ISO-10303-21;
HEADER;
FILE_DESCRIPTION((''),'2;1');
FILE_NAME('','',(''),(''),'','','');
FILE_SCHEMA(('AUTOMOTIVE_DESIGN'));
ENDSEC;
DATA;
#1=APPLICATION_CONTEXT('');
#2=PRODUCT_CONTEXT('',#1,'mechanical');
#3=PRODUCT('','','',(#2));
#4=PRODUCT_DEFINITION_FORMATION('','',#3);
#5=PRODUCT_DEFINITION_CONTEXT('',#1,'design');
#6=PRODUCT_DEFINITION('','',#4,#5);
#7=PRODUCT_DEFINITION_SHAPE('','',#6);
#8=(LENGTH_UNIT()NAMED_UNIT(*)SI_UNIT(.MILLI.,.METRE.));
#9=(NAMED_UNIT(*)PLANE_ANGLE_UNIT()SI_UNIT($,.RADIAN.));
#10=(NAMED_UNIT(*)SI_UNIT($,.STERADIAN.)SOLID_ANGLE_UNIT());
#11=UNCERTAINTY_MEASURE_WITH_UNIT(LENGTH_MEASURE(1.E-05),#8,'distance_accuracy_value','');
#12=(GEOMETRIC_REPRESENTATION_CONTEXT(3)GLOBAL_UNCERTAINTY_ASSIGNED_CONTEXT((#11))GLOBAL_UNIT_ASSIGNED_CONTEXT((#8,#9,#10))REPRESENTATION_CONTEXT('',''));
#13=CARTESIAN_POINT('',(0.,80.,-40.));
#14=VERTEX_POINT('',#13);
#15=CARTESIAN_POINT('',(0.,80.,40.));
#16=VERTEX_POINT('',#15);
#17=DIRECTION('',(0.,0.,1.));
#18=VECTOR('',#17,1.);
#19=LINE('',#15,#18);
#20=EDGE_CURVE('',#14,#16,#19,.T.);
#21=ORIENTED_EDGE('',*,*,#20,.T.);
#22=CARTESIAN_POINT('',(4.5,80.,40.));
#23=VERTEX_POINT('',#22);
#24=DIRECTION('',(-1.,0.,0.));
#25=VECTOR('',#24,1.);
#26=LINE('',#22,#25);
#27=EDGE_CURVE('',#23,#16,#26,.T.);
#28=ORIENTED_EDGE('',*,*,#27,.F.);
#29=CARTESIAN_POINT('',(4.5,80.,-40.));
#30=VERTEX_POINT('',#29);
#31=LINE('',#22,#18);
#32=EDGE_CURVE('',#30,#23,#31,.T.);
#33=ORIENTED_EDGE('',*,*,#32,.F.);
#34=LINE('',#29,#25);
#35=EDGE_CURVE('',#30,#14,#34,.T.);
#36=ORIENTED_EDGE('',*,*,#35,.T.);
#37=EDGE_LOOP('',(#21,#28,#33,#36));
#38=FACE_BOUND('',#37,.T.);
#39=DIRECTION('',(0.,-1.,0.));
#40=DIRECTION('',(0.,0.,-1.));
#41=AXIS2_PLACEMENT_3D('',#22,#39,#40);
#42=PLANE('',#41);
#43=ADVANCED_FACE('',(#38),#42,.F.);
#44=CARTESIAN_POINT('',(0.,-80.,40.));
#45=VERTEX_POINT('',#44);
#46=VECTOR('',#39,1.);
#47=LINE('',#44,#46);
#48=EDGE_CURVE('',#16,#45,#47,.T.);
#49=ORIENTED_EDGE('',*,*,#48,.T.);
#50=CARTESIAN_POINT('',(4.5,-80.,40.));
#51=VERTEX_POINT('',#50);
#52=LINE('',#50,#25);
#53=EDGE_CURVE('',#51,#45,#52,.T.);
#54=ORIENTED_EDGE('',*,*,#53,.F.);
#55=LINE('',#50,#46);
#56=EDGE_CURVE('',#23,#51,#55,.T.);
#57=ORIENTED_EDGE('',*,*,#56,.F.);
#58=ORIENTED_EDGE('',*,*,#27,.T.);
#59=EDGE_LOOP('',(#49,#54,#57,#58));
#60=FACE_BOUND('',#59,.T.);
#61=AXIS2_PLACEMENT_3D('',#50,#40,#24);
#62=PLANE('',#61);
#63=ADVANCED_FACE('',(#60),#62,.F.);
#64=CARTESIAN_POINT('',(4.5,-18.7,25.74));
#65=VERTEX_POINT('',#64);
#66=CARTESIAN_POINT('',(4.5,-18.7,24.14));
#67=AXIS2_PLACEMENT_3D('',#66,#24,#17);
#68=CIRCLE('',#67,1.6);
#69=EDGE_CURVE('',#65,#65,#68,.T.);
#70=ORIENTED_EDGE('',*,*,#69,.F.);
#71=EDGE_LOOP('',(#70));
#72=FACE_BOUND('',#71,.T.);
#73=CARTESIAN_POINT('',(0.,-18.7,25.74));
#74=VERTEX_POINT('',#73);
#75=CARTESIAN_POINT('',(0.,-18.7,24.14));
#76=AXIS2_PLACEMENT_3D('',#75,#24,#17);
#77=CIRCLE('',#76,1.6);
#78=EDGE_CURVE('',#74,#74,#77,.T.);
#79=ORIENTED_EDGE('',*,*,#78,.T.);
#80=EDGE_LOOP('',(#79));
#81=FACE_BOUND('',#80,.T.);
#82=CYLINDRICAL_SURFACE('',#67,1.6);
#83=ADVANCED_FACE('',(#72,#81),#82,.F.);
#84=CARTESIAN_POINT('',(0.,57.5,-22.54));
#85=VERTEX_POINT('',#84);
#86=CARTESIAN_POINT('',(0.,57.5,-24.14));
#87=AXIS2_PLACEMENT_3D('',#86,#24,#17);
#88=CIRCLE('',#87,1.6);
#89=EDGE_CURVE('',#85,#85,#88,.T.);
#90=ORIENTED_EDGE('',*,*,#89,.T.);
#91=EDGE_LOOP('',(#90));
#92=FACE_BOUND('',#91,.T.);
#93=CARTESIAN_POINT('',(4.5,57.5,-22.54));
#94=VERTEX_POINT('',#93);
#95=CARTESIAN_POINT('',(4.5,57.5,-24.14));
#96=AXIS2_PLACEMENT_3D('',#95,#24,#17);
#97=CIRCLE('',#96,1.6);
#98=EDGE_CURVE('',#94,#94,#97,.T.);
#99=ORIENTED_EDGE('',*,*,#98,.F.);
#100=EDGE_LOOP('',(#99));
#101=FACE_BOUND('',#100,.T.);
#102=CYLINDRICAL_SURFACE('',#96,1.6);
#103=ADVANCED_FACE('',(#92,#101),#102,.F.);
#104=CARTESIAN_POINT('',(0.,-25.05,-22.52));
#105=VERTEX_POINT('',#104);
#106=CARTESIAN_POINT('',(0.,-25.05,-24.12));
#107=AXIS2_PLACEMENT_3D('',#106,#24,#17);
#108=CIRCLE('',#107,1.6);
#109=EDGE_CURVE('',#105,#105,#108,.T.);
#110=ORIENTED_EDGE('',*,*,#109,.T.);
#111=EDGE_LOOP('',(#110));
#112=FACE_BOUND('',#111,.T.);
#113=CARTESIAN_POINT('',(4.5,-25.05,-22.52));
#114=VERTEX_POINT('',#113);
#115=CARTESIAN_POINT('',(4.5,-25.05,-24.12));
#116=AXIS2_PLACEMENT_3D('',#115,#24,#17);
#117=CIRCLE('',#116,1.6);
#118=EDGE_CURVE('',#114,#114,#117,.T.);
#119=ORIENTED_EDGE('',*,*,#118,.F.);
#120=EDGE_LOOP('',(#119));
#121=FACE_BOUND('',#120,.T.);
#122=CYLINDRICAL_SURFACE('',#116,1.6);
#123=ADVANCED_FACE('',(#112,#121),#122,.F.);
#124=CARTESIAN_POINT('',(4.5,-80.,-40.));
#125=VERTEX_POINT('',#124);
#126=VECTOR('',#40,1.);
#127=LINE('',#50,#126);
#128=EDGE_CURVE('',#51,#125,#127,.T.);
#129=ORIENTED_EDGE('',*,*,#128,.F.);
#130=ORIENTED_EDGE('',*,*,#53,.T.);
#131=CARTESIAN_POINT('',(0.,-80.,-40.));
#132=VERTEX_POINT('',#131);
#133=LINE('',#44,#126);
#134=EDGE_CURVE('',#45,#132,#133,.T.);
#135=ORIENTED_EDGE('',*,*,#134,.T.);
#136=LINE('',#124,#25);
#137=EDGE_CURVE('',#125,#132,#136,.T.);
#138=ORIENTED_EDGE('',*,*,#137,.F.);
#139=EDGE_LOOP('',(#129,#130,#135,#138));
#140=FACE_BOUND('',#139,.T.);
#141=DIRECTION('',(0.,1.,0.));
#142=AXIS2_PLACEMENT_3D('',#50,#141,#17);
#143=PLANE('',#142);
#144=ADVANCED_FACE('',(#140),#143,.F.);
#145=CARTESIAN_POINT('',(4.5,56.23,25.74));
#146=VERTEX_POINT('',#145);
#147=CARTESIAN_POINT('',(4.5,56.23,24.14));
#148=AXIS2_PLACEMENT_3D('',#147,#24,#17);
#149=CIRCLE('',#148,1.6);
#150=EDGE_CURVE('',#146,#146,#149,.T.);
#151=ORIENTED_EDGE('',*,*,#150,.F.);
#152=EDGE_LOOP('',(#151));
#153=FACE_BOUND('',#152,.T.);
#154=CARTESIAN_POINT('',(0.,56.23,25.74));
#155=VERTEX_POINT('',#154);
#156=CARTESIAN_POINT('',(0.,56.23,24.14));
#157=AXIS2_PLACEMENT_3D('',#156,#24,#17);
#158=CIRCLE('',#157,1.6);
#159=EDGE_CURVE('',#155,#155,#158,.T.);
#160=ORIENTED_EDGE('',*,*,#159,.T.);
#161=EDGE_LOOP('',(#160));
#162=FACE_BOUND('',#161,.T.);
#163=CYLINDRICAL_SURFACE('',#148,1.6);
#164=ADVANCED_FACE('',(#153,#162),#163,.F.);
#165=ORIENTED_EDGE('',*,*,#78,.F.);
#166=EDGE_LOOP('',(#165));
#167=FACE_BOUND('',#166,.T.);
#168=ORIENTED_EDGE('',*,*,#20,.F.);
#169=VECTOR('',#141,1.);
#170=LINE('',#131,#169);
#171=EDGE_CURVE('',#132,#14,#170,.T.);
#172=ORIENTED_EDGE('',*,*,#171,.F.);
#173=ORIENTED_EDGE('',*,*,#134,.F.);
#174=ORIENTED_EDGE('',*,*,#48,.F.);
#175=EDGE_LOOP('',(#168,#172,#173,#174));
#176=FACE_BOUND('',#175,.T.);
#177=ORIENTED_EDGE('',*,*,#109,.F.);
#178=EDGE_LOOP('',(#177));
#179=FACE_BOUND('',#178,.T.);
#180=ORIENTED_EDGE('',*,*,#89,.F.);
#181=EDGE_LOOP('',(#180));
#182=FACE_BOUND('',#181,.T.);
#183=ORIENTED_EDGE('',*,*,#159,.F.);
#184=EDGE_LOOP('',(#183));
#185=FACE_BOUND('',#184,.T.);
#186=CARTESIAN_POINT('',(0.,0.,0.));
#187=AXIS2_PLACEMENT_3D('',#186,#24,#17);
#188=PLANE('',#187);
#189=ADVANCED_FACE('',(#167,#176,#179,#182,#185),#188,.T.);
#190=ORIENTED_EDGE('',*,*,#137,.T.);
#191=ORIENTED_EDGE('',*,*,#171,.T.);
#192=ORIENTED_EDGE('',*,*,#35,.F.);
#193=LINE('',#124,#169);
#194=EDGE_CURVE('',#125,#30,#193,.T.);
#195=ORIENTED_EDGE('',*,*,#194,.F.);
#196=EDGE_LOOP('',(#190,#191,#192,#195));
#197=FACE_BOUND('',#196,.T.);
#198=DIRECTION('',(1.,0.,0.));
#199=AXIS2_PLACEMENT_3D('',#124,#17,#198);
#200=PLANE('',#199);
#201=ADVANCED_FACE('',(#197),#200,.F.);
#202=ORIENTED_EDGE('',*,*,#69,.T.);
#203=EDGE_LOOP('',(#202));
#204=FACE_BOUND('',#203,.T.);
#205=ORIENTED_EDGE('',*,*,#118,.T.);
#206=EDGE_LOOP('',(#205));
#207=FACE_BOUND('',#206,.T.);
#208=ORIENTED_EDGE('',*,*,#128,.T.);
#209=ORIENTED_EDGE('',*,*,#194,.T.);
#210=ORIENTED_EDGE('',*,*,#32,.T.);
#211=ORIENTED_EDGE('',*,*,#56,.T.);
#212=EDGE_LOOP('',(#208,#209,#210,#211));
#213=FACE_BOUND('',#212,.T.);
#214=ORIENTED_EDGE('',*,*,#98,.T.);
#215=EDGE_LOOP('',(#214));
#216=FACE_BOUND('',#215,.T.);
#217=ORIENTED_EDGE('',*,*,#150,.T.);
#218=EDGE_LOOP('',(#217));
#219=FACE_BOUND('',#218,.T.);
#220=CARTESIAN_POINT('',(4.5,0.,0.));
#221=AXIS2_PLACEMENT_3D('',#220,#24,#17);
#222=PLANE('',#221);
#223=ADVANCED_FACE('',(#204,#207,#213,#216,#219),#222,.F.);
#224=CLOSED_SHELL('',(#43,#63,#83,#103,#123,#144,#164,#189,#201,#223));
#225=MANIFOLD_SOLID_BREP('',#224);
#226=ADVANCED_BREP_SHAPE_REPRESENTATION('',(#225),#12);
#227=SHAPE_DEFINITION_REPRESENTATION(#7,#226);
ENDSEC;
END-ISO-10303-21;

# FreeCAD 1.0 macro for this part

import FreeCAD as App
import Part
import Sketcher
from FreeCAD import Vector

doc = App.newDocument("Part")
body = doc.addObject("PartDesign::Body", "Body")

# Sketch on YZ plane
sketch1 = doc.addObject("Sketcher::SketchObject", "Sketch")
body.addObject(sketch1)
sketch1.AttachmentSupport = (doc.YZ_Plane, [""])
sketch1.MapMode = "FlatFace"
sketch1.addGeometry(Part.LineSegment(Vector(80, 40, 0), Vector(-80, 40, 0)), False)
sketch1.addGeometry(Part.LineSegment(Vector(-80, 40, 0), Vector(-80, -40, 0)), False)
sketch1.addGeometry(Part.LineSegment(Vector(-80, -40, 0), Vector(80, -40, 0)), False)
sketch1.addGeometry(Part.LineSegment(Vector(80, -40, 0), Vector(80, 40, 0)), False)
sketch1.addConstraint(Sketcher.Constraint("Coincident", 0, 2, 1, 1))
sketch1.addConstraint(Sketcher.Constraint("Coincident", 1, 2, 2, 1))
sketch1.addConstraint(Sketcher.Constraint("Coincident", 2, 2, 3, 1))
sketch1.addConstraint(Sketcher.Constraint("Coincident", 3, 2, 0, 1))
sketch1.addConstraint(Sketcher.Constraint("Horizontal", 0))
sketch1.addConstraint(Sketcher.Constraint("Vertical", 1))
sketch1.addConstraint(Sketcher.Constraint("Horizontal", 2))
sketch1.addConstraint(Sketcher.Constraint("Vertical", 3))
sketch1.addConstraint(Sketcher.Constraint("Symmetric", 0, 2, 2, 2, -1, 1))
sketch1.addConstraint(Sketcher.Constraint("DistanceX", 0, 2, 0, 1, 160.0))
sketch1.addConstraint(Sketcher.Constraint("DistanceY", 1, 2, 1, 1, 80.0))
pad1 = doc.addObject("PartDesign::Pad", "Pad")
body.addObject(pad1)
pad1.Profile = sketch1
pad1.Length = 4.5

# Sketch on YZ plane
sketch2 = doc.addObject("Sketcher::SketchObject", "Sketch001")
body.addObject(sketch2)
sketch2.AttachmentSupport = (doc.YZ_Plane, [""])
sketch2.MapMode = "FlatFace"
sketch2.addGeometry(Part.Circle(Vector(57.5, -24.14, 0), Vector(0, 0, 1), 1.6), False)
sketch2.addGeometry(Part.Circle(Vector(56.23, 24.14, 0), Vector(0, 0, 1), 1.6), False)
sketch2.addGeometry(Part.Circle(Vector(-18.7, 24.14, 0), Vector(0, 0, 1), 1.6), False)
sketch2.addGeometry(Part.Circle(Vector(-25.05, -24.12, 0), Vector(0, 0, 1), 1.6), False)
sketch2.addConstraint(Sketcher.Constraint("Equal", 0, 1))
sketch2.addConstraint(Sketcher.Constraint("Equal", 1, 2))
sketch2.addConstraint(Sketcher.Constraint("Equal", 2, 3))
sketch2.addConstraint(Sketcher.Constraint("Horizontal", 1, 3, 2, 3))
sketch2.addConstraint(Sketcher.Constraint("Diameter", 0, 3.2))
sketch2.addConstraint(Sketcher.Constraint("DistanceX", -1, 1, 0, 3, 57.5))
sketch2.addConstraint(Sketcher.Constraint("DistanceX", 2, 3, -1, 1, 18.7))
sketch2.addConstraint(Sketcher.Constraint("DistanceY", 0, 3, -1, 1, 24.14))
sketch2.addConstraint(Sketcher.Constraint("DistanceX", -1, 1, 1, 3, 56.23))
sketch2.addConstraint(Sketcher.Constraint("DistanceY", -1, 1, 1, 3, 24.14))
sketch2.addConstraint(Sketcher.Constraint("DistanceX", 3, 3, -1, 1, 25.05))
sketch2.addConstraint(Sketcher.Constraint("DistanceY", 3, 3, -1, 1, 24.12))
pocket1 = doc.addObject("PartDesign::Pocket", "Pocket")
body.addObject(pocket1)
pocket1.Profile = sketch2
pocket1.Length = 4.5
pocket1.Reversed = True

doc.recompute()
